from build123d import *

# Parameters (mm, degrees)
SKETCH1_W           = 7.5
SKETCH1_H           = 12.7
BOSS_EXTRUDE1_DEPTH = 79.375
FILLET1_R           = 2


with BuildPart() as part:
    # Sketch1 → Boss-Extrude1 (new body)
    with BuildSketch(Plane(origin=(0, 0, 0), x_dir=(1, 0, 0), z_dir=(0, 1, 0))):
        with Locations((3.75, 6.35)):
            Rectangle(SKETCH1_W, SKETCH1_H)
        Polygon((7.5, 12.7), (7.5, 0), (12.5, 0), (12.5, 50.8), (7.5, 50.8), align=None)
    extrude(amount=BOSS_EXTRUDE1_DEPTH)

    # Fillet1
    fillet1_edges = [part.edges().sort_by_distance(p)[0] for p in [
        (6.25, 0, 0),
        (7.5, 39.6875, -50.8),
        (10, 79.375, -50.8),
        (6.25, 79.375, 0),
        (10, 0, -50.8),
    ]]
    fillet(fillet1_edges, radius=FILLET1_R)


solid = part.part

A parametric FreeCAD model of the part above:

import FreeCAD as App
import Part
import Sketcher

V = App.Vector


def edges_at(feature, points):
    """Names of the edges that pass closest to the given points."""
    edges = feature.Shape.Edges
    near = lambda p: min(range(len(edges)), key=lambda i: edges[i].distToShape(Part.Vertex(*p))[0])
    return sorted({f"Edge{near(p) + 1}" for p in points})


def add_polygon(sketch, points):
    """Adds a closed chain of lines whose ends are joined by coincident constraints."""
    first, n = sketch.GeometryCount, len(points)
    for a, b in zip(points, points[1:] + points[:1]):
        sketch.addGeometry(Part.LineSegment(App.Vector(*a, 0), App.Vector(*b, 0)), False)
    for i in range(n):
        sketch.addConstraint(Sketcher.Constraint("Coincident", first + i, 2, first + (i + 1) % n, 1))

doc = App.newDocument("Part")
body = doc.addObject("PartDesign::Body", "Body")

sketch1 = body.newObject("Sketcher::SketchObject", "Sketch")
sketch1.AttachmentSupport = (doc.getObject("XZ_Plane"), [""])
sketch1.MapMode = "FlatFace"
add_polygon(sketch1, [(0, -12.7), (0, 0), (12.5, 0), (12.5, -50.8), (7.5, -50.8), (7.5, -12.7)])
sketch1.addConstraint([
    Sketcher.Constraint("Vertical", 0),
    Sketcher.Constraint("Horizontal", 1),
    Sketcher.Constraint("Vertical", 2),
    Sketcher.Constraint("Horizontal", 3),
    Sketcher.Constraint("Vertical", 4),
    Sketcher.Constraint("Horizontal", 5),
    Sketcher.Constraint("Coincident", 0, 2, -1, 1),
    Sketcher.Constraint("DistanceX", 3, 2, 3, 1, 5.0),
    Sketcher.Constraint("DistanceX", 1, 1, 1, 2, 12.5),
    Sketcher.Constraint("DistanceY", 0, 1, 0, 2, 12.7),
    Sketcher.Constraint("DistanceY", 2, 2, 2, 1, 50.8),
])
pad1 = body.newObject("PartDesign::Pad", "Pad")
pad1.Profile = sketch1
pad1.Length = 79.375
pad1.Reversed = True
doc.recompute()

fillet = body.newObject("PartDesign::Fillet", "Fillet")
fillet.Base = (pad1, edges_at(pad1, [
    (6.25, 0, 0),
    (7.5, 39.688, -50.8),
    (10, 79.375, -50.8),
    (6.25, 79.375, 0),
    (10, 0, -50.8),
]))
fillet.Radius = 2

doc.recompute()
